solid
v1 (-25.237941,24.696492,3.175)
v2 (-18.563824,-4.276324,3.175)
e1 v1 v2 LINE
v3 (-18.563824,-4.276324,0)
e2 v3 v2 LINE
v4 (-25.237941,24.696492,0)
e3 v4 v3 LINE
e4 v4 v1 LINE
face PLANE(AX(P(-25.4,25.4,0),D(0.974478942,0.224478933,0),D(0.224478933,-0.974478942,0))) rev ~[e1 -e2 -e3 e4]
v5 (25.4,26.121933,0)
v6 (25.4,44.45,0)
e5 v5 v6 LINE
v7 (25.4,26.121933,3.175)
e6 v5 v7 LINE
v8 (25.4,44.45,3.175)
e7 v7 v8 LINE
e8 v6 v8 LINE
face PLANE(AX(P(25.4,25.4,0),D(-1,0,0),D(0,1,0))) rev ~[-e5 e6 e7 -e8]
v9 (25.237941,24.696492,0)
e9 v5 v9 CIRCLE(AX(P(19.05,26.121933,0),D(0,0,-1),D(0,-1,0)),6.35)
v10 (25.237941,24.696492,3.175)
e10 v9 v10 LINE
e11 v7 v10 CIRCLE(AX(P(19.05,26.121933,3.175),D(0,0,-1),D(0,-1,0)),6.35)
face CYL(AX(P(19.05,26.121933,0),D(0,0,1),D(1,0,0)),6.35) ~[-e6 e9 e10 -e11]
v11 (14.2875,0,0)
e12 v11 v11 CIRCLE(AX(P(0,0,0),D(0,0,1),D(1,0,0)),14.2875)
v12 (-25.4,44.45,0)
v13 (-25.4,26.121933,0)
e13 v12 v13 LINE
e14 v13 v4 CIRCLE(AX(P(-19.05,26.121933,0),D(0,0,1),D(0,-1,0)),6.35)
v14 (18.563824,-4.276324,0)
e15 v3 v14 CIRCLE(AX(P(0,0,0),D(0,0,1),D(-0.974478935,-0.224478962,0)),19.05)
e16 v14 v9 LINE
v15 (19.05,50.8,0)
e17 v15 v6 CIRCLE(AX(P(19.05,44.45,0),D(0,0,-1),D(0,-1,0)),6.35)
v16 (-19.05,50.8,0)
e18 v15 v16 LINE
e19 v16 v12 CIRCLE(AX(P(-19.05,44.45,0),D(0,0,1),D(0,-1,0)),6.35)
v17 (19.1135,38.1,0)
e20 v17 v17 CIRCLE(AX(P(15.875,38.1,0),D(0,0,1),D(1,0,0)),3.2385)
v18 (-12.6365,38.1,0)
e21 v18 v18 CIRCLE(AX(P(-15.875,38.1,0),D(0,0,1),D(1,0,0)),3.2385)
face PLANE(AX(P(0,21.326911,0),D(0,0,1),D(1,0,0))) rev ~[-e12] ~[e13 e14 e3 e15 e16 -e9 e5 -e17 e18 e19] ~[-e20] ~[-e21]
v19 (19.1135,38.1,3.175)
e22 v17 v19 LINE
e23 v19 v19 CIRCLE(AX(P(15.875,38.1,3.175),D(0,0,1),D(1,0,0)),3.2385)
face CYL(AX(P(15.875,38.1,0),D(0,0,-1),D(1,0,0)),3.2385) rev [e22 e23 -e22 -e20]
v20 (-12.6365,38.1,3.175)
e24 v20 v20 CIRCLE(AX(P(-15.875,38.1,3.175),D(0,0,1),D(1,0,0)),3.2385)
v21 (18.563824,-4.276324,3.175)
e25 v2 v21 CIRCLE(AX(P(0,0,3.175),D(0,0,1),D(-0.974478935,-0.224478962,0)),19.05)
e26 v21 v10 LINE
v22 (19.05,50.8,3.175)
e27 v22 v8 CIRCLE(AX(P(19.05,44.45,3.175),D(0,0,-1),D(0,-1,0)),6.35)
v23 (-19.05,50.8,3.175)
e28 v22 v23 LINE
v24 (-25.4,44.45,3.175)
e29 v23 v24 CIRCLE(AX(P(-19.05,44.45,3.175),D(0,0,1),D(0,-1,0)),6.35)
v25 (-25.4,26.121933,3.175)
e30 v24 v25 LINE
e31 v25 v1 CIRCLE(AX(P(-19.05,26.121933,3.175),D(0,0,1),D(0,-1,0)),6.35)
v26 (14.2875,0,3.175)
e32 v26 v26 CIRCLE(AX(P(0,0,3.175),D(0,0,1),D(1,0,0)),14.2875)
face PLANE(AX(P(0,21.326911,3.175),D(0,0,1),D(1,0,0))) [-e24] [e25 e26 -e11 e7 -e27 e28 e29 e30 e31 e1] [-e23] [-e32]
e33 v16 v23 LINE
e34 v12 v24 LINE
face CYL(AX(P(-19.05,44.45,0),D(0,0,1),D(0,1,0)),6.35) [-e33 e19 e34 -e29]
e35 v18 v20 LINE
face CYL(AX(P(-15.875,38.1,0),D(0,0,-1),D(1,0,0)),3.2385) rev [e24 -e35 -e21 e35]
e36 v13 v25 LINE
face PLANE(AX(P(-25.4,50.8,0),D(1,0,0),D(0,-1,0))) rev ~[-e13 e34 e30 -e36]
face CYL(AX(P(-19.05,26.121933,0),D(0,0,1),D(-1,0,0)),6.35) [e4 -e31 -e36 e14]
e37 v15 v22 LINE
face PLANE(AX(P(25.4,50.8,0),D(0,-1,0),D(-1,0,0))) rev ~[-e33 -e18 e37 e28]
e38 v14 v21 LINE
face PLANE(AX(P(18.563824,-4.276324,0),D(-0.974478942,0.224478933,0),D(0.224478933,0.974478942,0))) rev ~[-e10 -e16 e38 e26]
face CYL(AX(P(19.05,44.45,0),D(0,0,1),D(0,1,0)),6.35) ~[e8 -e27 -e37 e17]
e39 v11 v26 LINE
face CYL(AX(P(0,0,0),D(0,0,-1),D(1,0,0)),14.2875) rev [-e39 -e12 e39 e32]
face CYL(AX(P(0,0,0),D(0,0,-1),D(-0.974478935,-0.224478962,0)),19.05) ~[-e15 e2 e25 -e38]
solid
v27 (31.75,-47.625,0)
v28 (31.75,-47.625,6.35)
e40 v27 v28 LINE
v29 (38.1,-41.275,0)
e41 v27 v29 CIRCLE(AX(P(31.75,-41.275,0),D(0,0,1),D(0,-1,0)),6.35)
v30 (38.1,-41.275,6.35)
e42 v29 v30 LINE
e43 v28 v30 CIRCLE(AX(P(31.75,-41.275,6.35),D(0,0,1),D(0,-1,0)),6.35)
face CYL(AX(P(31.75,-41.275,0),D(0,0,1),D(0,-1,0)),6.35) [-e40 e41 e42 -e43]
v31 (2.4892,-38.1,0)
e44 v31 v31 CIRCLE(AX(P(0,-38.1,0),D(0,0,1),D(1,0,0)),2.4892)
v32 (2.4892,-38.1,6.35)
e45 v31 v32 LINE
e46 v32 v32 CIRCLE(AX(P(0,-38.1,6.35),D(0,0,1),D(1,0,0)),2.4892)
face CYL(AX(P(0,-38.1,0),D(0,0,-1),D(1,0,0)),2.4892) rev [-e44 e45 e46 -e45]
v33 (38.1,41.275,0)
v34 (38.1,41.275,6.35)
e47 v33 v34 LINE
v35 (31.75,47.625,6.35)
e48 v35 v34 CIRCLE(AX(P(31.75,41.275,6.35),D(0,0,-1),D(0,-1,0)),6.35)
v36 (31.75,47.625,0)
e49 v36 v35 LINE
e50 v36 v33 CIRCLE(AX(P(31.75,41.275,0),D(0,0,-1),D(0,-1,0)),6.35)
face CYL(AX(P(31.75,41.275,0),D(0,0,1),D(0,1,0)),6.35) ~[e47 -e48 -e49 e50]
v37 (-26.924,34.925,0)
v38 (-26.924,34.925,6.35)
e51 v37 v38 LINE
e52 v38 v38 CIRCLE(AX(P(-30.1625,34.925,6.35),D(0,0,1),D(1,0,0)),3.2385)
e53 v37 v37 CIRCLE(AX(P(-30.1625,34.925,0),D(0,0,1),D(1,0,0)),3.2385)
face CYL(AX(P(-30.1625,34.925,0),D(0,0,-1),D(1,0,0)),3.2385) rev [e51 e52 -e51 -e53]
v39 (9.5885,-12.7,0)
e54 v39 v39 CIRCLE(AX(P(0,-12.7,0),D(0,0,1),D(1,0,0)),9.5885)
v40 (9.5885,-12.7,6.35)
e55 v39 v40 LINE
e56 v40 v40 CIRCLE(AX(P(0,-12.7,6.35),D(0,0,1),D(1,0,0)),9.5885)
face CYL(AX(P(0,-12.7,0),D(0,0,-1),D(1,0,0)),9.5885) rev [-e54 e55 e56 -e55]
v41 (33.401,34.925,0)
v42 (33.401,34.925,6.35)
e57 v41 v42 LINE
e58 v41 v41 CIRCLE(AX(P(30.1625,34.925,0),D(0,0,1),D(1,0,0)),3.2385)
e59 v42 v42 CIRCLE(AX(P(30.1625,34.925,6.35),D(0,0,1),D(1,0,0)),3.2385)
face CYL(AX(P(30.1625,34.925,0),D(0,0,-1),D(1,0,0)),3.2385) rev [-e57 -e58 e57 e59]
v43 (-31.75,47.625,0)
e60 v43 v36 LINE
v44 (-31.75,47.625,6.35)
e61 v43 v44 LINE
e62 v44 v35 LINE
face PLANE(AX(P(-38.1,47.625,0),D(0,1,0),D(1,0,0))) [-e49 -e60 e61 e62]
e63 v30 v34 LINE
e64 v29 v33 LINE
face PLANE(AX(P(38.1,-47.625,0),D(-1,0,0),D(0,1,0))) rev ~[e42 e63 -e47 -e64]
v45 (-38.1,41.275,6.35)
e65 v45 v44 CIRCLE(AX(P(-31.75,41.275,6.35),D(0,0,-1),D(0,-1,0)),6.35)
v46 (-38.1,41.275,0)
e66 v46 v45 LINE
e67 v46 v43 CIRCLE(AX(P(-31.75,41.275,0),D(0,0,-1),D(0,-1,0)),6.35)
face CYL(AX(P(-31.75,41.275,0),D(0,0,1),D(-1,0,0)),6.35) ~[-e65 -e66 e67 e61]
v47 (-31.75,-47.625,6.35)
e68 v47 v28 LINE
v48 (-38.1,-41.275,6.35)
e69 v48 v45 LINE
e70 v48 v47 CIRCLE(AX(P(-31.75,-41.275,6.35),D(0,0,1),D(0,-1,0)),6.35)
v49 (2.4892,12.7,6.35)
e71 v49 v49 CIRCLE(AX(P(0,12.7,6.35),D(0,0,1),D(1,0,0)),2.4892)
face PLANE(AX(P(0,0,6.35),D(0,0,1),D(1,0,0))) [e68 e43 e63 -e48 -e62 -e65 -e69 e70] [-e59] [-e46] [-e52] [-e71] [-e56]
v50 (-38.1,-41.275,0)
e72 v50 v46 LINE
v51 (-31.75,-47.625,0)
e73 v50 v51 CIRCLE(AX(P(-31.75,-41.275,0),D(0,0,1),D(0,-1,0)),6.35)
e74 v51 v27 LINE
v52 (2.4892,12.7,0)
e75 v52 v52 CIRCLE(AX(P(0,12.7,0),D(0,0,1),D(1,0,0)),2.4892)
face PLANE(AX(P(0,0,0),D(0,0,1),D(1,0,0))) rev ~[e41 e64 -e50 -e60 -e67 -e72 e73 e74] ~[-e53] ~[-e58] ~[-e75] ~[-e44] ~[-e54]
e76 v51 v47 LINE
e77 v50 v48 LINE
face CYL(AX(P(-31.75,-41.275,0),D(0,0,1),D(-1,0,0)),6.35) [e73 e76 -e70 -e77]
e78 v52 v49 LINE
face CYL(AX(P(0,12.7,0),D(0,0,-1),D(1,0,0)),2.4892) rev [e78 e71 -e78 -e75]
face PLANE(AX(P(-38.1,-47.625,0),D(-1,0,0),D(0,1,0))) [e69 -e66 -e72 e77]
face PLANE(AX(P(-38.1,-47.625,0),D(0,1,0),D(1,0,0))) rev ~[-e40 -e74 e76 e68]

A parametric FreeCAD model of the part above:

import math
import FreeCAD as App
import Part
import Sketcher
Q = App.Units.Quantity


def edges_at(feature, points):
    """Names of the edges that pass closest to the given points."""
    edges = feature.Shape.Edges
    near = lambda p: min(range(len(edges)), key=lambda i: edges[i].distToShape(Part.Vertex(*p))[0])
    return sorted({f"Edge{near(p) + 1}" for p in points})

doc = App.newDocument("Part")
body = doc.addObject("PartDesign::Body", "Body")

sketch1 = doc.addObject("Sketcher::SketchObject", "Sketch")
body.addObject(sketch1)
sketch1.AttachmentSupport = (doc.XY_Plane, [""])
sketch1.MapMode = "FlatFace"
sketch1.addGeometry(Part.LineSegment(App.Vector(-38.1, 47.6, 0), App.Vector(-38.1, -47.6, 0)), False)
sketch1.addGeometry(Part.LineSegment(App.Vector(-38.1, -47.6, 0), App.Vector(38.1, -47.6, 0)), False)
sketch1.addGeometry(Part.LineSegment(App.Vector(38.1, -47.6, 0), App.Vector(38.1, 47.6, 0)), False)
sketch1.addGeometry(Part.LineSegment(App.Vector(38.1, 47.6, 0), App.Vector(-38.1, 47.6, 0)), False)
sketch1.addGeometry(Part.Circle(App.Vector(0, -38.1, 0), App.Vector(0, 0, 1), 2.5), False)
sketch1.addGeometry(Part.Circle(App.Vector(0, -12.7, 0), App.Vector(0, 0, 1), 9.6), False)
sketch1.addGeometry(Part.Circle(App.Vector(-30.2, 34.9, 0), App.Vector(0, 0, 1), 3.2), False)
sketch1.addGeometry(Part.Circle(App.Vector(0, 12.7, 0), App.Vector(0, 0, 1), 2.5), False)
sketch1.addGeometry(Part.Circle(App.Vector(30.2, 34.9, 0), App.Vector(0, 0, 1), 3.2), False)
sketch1.addConstraint(Sketcher.Constraint("Coincident", 0, 2, 1, 1))
sketch1.addConstraint(Sketcher.Constraint("Coincident", 1, 2, 2, 1))
sketch1.addConstraint(Sketcher.Constraint("Coincident", 2, 2, 3, 1))
sketch1.addConstraint(Sketcher.Constraint("Coincident", 3, 2, 0, 1))
sketch1.addConstraint(Sketcher.Constraint("Vertical", 0))
sketch1.addConstraint(Sketcher.Constraint("Horizontal", 1))
sketch1.addConstraint(Sketcher.Constraint("Vertical", 2))
sketch1.addConstraint(Sketcher.Constraint("Horizontal", 3))
sketch1.addConstraint(Sketcher.Constraint("Equal", 4, 7))
sketch1.addConstraint(Sketcher.Constraint("Equal", 6, 8))
sketch1.addConstraint(Sketcher.Constraint("Symmetric", 5, 3, 7, 3, -1, 1))
sketch1.addConstraint(Sketcher.Constraint("Symmetric", 0, 2, 2, 2, -1, 1))
sketch1.addConstraint(Sketcher.Constraint("Symmetric", 6, 3, 8, 3, -2))
sketch1.addConstraint(Sketcher.Constraint("PointOnObject", 4, 3, -2))
sketch1.addConstraint(Sketcher.Constraint("PointOnObject", 5, 3, -2))
sketch1.addConstraint(Sketcher.Constraint("DistanceX", 1, 1, 1, 2, Q("3 in")))
sketch1.addConstraint(Sketcher.Constraint("Diameter", 4, Q("0.196 in")))
sketch1.addConstraint(Sketcher.Constraint("Diameter", 5, Q("0.755 in")))
sketch1.addConstraint(Sketcher.Constraint("Diameter", 6, Q("0.255 in")))
sketch1.addConstraint(Sketcher.Constraint("DistanceY", 4, 3, 5, 3, Q("1 in")))
sketch1.addConstraint(Sketcher.Constraint("DistanceY", 5, 3, 7, 3, Q("1 in")))
sketch1.addConstraint(Sketcher.Constraint("DistanceY", 0, 2, 0, 1, Q("3.75 in")))
sketch1.addConstraint(Sketcher.Constraint("DistanceY", 8, 3, 2, 2, Q("0.5 in")))
sketch1.addConstraint(Sketcher.Constraint("DistanceX", 6, 3, -1, 1, Q("1.1875 in")))
pad1 = doc.addObject("PartDesign::Pad", "Pad")
body.addObject(pad1)
pad1.Profile = sketch1
pad1.Length = Q("0.25 in")
doc.recompute()

fillet = doc.addObject("PartDesign::Fillet", "Fillet")
body.addObject(fillet)
fillet.Base = (pad1, edges_at(pad1, [
    (-38.1, 47.625, 3.175),
    (-38.1, -47.625, 3.175),
    (38.1, -47.625, 3.175),
    (38.1, 47.625, 3.175),
]))
fillet.Radius = Q("0.25 in")
body2 = doc.addObject("PartDesign::Body", "Body001")

sketch2 = doc.addObject("Sketcher::SketchObject", "Sketch001")
body2.addObject(sketch2)
sketch2.AttachmentSupport = (doc.getObject("XY_Plane001"), [""])
sketch2.MapMode = "FlatFace"
sketch2.addGeometry(Part.LineSegment(App.Vector(25.4, 50.8, 0), App.Vector(-25.4, 50.8, 0)), False)
sketch2.addGeometry(Part.LineSegment(App.Vector(-25.4, 50.8, 0), App.Vector(-25.4, 25.4, 0)), False)
sketch2.addGeometry(Part.LineSegment(App.Vector(-25.4, 25.4, 0), App.Vector(-18.6, -4.3, 0)), False)
sketch2.addGeometry(Part.ArcOfCircle(Part.Circle(App.Vector(0, 0, 0), App.Vector(0, 0, 1), 19.1), math.radians(-167), math.radians(-13)), False)
sketch2.addGeometry(Part.LineSegment(App.Vector(18.6, -4.3, 0), App.Vector(25.4, 25.4, 0)), False)
sketch2.addGeometry(Part.LineSegment(App.Vector(25.4, 25.4, 0), App.Vector(25.4, 50.8, 0)), False)
sketch2.addGeometry(Part.Circle(App.Vector(0, 0, 0), App.Vector(0, 0, 1), 14.3), False)
sketch2.addGeometry(Part.Circle(App.Vector(-15.9, 38.1, 0), App.Vector(0, 0, 1), 3.2), False)
sketch2.addGeometry(Part.Circle(App.Vector(15.9, 38.1, 0), App.Vector(0, 0, 1), 3.2), False)
sketch2.addConstraint(Sketcher.Constraint("Coincident", 0, 2, 1, 1))
sketch2.addConstraint(Sketcher.Constraint("Coincident", 1, 2, 2, 1))
sketch2.addConstraint(Sketcher.Constraint("Tangent", 2, 2, 3, 1))
sketch2.addConstraint(Sketcher.Constraint("Tangent", 3, 2, 4, 1))
sketch2.addConstraint(Sketcher.Constraint("Coincident", 4, 2, 5, 1))
sketch2.addConstraint(Sketcher.Constraint("Coincident", 5, 2, 0, 1))
sketch2.addConstraint(Sketcher.Constraint("Horizontal", 0))
sketch2.addConstraint(Sketcher.Constraint("Vertical", 1))
sketch2.addConstraint(Sketcher.Constraint("Vertical", 5))
sketch2.addConstraint(Sketcher.Constraint("Coincident", 3, 3, -1, 1))
sketch2.addConstraint(Sketcher.Constraint("Coincident", 6, 3, -1, 1))
sketch2.addConstraint(Sketcher.Constraint("Equal", 7, 8))
sketch2.addConstraint(Sketcher.Constraint("Symmetric", 7, 3, 8, 3, -2))
sketch2.addConstraint(Sketcher.Constraint("Symmetric", 1, 2, 4, 2, -2))
sketch2.addConstraint(Sketcher.Constraint("DistanceX", 0, 2, 0, 1, Q("2 in")))
sketch2.addConstraint(Sketcher.Constraint("DistanceY", 1, 2, 1, 1, Q("1 in")))
sketch2.addConstraint(Sketcher.Constraint("Radius", 3, Q("0.75 in")))
sketch2.addConstraint(Sketcher.Constraint("Diameter", 6, Q("1.125 in")))
sketch2.addConstraint(Sketcher.Constraint("Diameter", 7, Q("0.255 in")))
sketch2.addConstraint(Sketcher.Constraint("DistanceY", -1, 1, 0, 2, Q("2 in")))
sketch2.addConstraint(Sketcher.Constraint("DistanceY", -1, 1, 7, 3, Q("1.5 in")))
sketch2.addConstraint(Sketcher.Constraint("DistanceX", 7, 3, 8, 3, Q("1.25 in")))
pad2 = doc.addObject("PartDesign::Pad", "Pad001")
body2.addObject(pad2)
pad2.Profile = sketch2
pad2.Length = Q("0.125 in")
doc.recompute()

fillet2 = doc.addObject("PartDesign::Fillet", "Fillet001")
body2.addObject(fillet2)
fillet2.Base = (pad2, edges_at(pad2, [
    (25.4, 50.8, 1.587),
    (25.4, 25.4, 1.587),
    (-25.4, 25.4, 1.587),
    (-25.4, 50.8, 1.587),
]))
fillet2.Radius = Q("0.25 in")

doc.recompute()
